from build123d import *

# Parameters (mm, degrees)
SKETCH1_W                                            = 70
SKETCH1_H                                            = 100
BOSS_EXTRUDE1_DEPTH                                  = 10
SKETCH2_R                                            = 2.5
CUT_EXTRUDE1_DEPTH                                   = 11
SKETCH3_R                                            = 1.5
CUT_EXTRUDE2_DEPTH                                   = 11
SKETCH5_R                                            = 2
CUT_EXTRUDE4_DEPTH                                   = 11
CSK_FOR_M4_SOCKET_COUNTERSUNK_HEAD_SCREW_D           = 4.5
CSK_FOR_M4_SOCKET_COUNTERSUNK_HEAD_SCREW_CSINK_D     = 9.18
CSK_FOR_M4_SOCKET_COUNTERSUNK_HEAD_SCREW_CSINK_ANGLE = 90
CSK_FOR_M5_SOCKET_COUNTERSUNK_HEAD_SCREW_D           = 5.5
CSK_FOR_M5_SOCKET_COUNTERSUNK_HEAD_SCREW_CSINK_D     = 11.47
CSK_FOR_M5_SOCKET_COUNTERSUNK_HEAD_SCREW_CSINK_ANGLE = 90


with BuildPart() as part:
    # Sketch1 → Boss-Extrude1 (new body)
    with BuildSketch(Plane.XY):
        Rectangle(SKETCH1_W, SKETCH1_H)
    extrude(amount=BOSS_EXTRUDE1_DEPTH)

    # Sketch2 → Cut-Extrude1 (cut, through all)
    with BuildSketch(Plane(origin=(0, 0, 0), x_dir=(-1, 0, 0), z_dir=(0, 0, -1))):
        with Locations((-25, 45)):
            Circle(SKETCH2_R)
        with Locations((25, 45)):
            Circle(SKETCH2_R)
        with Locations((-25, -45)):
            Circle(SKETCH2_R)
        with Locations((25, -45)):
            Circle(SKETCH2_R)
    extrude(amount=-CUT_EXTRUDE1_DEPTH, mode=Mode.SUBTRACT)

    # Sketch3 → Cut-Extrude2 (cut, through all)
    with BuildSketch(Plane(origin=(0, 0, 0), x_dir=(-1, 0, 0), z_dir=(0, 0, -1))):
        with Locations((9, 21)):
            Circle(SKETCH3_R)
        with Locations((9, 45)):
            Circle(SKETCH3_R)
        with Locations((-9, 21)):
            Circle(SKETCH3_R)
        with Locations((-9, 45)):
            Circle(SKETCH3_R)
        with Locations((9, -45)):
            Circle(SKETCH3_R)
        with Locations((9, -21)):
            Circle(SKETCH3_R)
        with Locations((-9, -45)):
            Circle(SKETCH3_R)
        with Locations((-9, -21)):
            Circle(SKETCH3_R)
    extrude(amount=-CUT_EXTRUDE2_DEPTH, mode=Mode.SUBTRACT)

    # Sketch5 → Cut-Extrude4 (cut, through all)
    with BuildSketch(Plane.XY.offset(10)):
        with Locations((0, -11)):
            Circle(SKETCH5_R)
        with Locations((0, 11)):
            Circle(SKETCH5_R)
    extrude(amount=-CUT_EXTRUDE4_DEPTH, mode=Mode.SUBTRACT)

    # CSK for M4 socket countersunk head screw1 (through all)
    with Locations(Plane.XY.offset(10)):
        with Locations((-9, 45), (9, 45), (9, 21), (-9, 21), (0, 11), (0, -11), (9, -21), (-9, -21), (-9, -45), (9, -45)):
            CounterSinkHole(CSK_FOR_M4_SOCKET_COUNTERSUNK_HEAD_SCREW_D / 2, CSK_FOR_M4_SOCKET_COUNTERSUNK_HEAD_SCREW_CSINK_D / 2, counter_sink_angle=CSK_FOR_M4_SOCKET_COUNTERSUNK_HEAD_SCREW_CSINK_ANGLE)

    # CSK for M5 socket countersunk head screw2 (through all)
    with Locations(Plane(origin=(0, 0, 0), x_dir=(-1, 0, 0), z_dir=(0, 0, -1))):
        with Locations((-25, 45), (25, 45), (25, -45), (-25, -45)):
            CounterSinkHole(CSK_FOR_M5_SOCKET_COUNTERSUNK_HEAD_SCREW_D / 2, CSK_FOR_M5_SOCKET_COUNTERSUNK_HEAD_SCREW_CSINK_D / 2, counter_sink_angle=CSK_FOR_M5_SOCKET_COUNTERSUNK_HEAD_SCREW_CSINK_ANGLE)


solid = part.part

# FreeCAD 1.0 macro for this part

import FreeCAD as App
import Part
import Sketcher

V = App.Vector


def add_polygon(sketch, points):
    """Adds a closed chain of lines whose ends are joined by coincident constraints."""
    first, n = sketch.GeometryCount, len(points)
    for a, b in zip(points, points[1:] + points[:1]):
        sketch.addGeometry(Part.LineSegment(App.Vector(*a, 0), App.Vector(*b, 0)), False)
    for i in range(n):
        sketch.addConstraint(Sketcher.Constraint("Coincident", first + i, 2, first + (i + 1) % n, 1))

doc = App.newDocument("Part")
body = doc.addObject("PartDesign::Body", "Body")

sketch1 = body.newObject("Sketcher::SketchObject", "Sketch")
sketch1.AttachmentSupport = (doc.getObject("XY_Plane"), [""])
sketch1.MapMode = "FlatFace"
add_polygon(sketch1, [(-35, 50), (-35, -50), (35, -50), (35, 50)])
sketch1.addConstraint(Sketcher.Constraint("Vertical", 0))
sketch1.addConstraint(Sketcher.Constraint("Horizontal", 1))
sketch1.addConstraint(Sketcher.Constraint("Vertical", 2))
sketch1.addConstraint(Sketcher.Constraint("Horizontal", 3))
sketch1.addConstraint(Sketcher.Constraint("Symmetric", 0, 2, 2, 2, -1, 1))
sketch1.addConstraint(Sketcher.Constraint("DistanceX", 1, 1, 1, 2, 70.0))
sketch1.addConstraint(Sketcher.Constraint("DistanceY", 0, 2, 0, 1, 100.0))
pad1 = body.newObject("PartDesign::Pad", "Pad")
pad1.Profile = sketch1
pad1.Length = 10

sketch2 = body.newObject("Sketcher::SketchObject", "Sketch001")
sketch2.AttachmentSupport = (doc.getObject("XY_Plane"), [""])
sketch2.MapMode = "FlatFace"
sketch2.addGeometry(Part.Circle(V(25, 45, 0), V(0, 0, 1), 2.5), False)
sketch2.addGeometry(Part.Circle(V(-25, 45, 0), V(0, 0, 1), 2.5), False)
sketch2.addGeometry(Part.Circle(V(25, -45, 0), V(0, 0, 1), 2.5), False)
sketch2.addGeometry(Part.Circle(V(-25, -45, 0), V(0, 0, 1), 2.5), False)
sketch2.addConstraint(Sketcher.Constraint("Equal", 0, 1))
sketch2.addConstraint(Sketcher.Constraint("Equal", 1, 2))
sketch2.addConstraint(Sketcher.Constraint("Equal", 2, 3))
sketch2.addConstraint(Sketcher.Constraint("Symmetric", 1, 3, 2, 3, -1, 1))
sketch2.addConstraint(Sketcher.Constraint("Symmetric", 0, 3, 3, 3, -1, 1))
sketch2.addConstraint(Sketcher.Constraint("Symmetric", 0, 3, 1, 3, -2))
sketch2.addConstraint(Sketcher.Constraint("Diameter", 0, 5.0))
sketch2.addConstraint(Sketcher.Constraint("DistanceX", -1, 1, 0, 3, 25.0))
sketch2.addConstraint(Sketcher.Constraint("DistanceY", -1, 1, 0, 3, 45.0))
pocket1 = body.newObject("PartDesign::Pocket", "Pocket")
pocket1.Profile = sketch2
pocket1.Type = "ThroughAll"
pocket1.Reversed = True

sketch3 = body.newObject("Sketcher::SketchObject", "Sketch002")
sketch3.AttachmentSupport = (doc.getObject("XY_Plane"), [""])
sketch3.MapMode = "FlatFace"
sketch3.addGeometry(Part.Circle(V(-9, 21, 0), V(0, 0, 1), 1.5), False)
sketch3.addGeometry(Part.Circle(V(-9, 45, 0), V(0, 0, 1), 1.5), False)
sketch3.addGeometry(Part.Circle(V(9, 21, 0), V(0, 0, 1), 1.5), False)
sketch3.addGeometry(Part.Circle(V(9, 45, 0), V(0, 0, 1), 1.5), False)
sketch3.addGeometry(Part.Circle(V(-9, -45, 0), V(0, 0, 1), 1.5), False)
sketch3.addGeometry(Part.Circle(V(-9, -21, 0), V(0, 0, 1), 1.5), False)
sketch3.addGeometry(Part.Circle(V(9, -45, 0), V(0, 0, 1), 1.5), False)
sketch3.addGeometry(Part.Circle(V(9, -21, 0), V(0, 0, 1), 1.5), False)
sketch3.addConstraint(Sketcher.Constraint("Equal", 0, 1))
sketch3.addConstraint(Sketcher.Constraint("Equal", 1, 2))
sketch3.addConstraint(Sketcher.Constraint("Equal", 2, 3))
sketch3.addConstraint(Sketcher.Constraint("Equal", 3, 4))
sketch3.addConstraint(Sketcher.Constraint("Equal", 4, 5))
sketch3.addConstraint(Sketcher.Constraint("Equal", 5, 6))
sketch3.addConstraint(Sketcher.Constraint("Equal", 6, 7))
sketch3.addConstraint(Sketcher.Constraint("Symmetric", 3, 3, 4, 3, -1, 1))
sketch3.addConstraint(Sketcher.Constraint("Symmetric", 2, 3, 5, 3, -1, 1))
sketch3.addConstraint(Sketcher.Constraint("Symmetric", 1, 3, 6, 3, -1, 1))
sketch3.addConstraint(Sketcher.Constraint("Symmetric", 0, 3, 7, 3, -1, 1))
sketch3.addConstraint(Sketcher.Constraint("Symmetric", 0, 3, 2, 3, -2))
sketch3.addConstraint(Sketcher.Constraint("Symmetric", 1, 3, 3, 3, -2))
sketch3.addConstraint(Sketcher.Constraint("Vertical", 0, 3, 1, 3))
sketch3.addConstraint(Sketcher.Constraint("Diameter", 0, 3.0))
sketch3.addConstraint(Sketcher.Constraint("DistanceX", 0, 3, -1, 1, 9.0))
sketch3.addConstraint(Sketcher.Constraint("DistanceY", -1, 1, 0, 3, 21.0))
sketch3.addConstraint(Sketcher.Constraint("DistanceY", -1, 1, 1, 3, 45.0))
pocket2 = body.newObject("PartDesign::Pocket", "Pocket001")
pocket2.Profile = sketch3
pocket2.Type = "ThroughAll"
pocket2.Reversed = True

sketch4 = body.newObject("Sketcher::SketchObject", "Sketch003")
sketch4.AttachmentSupport = (doc.getObject("XY_Plane"), [""])
sketch4.MapMode = "FlatFace"
sketch4.AttachmentOffset = App.Placement(V(0, 0, 10), App.Rotation())
sketch4.addGeometry(Part.Circle(V(0, -11, 0), V(0, 0, 1), 2), False)
sketch4.addGeometry(Part.Circle(V(0, 11, 0), V(0, 0, 1), 2), False)
sketch4.addConstraint(Sketcher.Constraint("Equal", 0, 1))
sketch4.addConstraint(Sketcher.Constraint("Symmetric", 0, 3, 1, 3, -1, 1))
sketch4.addConstraint(Sketcher.Constraint("PointOnObject", 0, 3, -2))
sketch4.addConstraint(Sketcher.Constraint("Diameter", 0, 4.0))
sketch4.addConstraint(Sketcher.Constraint("DistanceY", 0, 3, -1, 1, 11.0))
pocket3 = body.newObject("PartDesign::Pocket", "Pocket002")
pocket3.Profile = sketch4
pocket3.Type = "ThroughAll"

sketch5 = body.newObject("Sketcher::SketchObject", "Sketch004")
sketch5.AttachmentSupport = (doc.getObject("XY_Plane"), [""])
sketch5.MapMode = "FlatFace"
sketch5.AttachmentOffset = App.Placement(V(0, 0, 10), App.Rotation())
sketch5.addGeometry(Part.Circle(V(-9, 45, 0), V(0, 0, 1), 2.2), False)
sketch5.addGeometry(Part.Circle(V(9, 45, 0), V(0, 0, 1), 2.2), False)
sketch5.addGeometry(Part.Circle(V(9, 21, 0), V(0, 0, 1), 2.2), False)
sketch5.addGeometry(Part.Circle(V(-9, 21, 0), V(0, 0, 1), 2.2), False)
sketch5.addGeometry(Part.Circle(V(0, 11, 0), V(0, 0, 1), 2.2), False)
sketch5.addGeometry(Part.Circle(V(0, -11, 0), V(0, 0, 1), 2.2), False)
sketch5.addGeometry(Part.Circle(V(9, -21, 0), V(0, 0, 1), 2.2), False)
sketch5.addGeometry(Part.Circle(V(-9, -21, 0), V(0, 0, 1), 2.2), False)
sketch5.addGeometry(Part.Circle(V(-9, -45, 0), V(0, 0, 1), 2.2), False)
sketch5.addGeometry(Part.Circle(V(9, -45, 0), V(0, 0, 1), 2.2), False)
sketch5.addConstraint(Sketcher.Constraint("Equal", 0, 1))
sketch5.addConstraint(Sketcher.Constraint("Equal", 1, 2))
sketch5.addConstraint(Sketcher.Constraint("Equal", 2, 3))
sketch5.addConstraint(Sketcher.Constraint("Equal", 3, 4))
sketch5.addConstraint(Sketcher.Constraint("Equal", 4, 5))
sketch5.addConstraint(Sketcher.Constraint("Equal", 5, 6))
sketch5.addConstraint(Sketcher.Constraint("Equal", 6, 7))
sketch5.addConstraint(Sketcher.Constraint("Equal", 7, 8))
sketch5.addConstraint(Sketcher.Constraint("Equal", 8, 9))
sketch5.addConstraint(Sketcher.Constraint("Symmetric", 4, 3, 5, 3, -1, 1))
sketch5.addConstraint(Sketcher.Constraint("Symmetric", 3, 3, 6, 3, -1, 1))
sketch5.addConstraint(Sketcher.Constraint("Symmetric", 2, 3, 7, 3, -1, 1))
sketch5.addConstraint(Sketcher.Constraint("Symmetric", 1, 3, 8, 3, -1, 1))
sketch5.addConstraint(Sketcher.Constraint("Symmetric", 0, 3, 9, 3, -1, 1))
sketch5.addConstraint(Sketcher.Constraint("Symmetric", 0, 3, 1, 3, -2))
sketch5.addConstraint(Sketcher.Constraint("Symmetric", 2, 3, 3, 3, -2))
sketch5.addConstraint(Sketcher.Constraint("PointOnObject", 4, 3, -2))
sketch5.addConstraint(Sketcher.Constraint("Vertical", 1, 3, 2, 3))
sketch5.addConstraint(Sketcher.Constraint("Diameter", 0, 4.5))
sketch5.addConstraint(Sketcher.Constraint("DistanceX", 0, 3, -1, 1, 9.0))
sketch5.addConstraint(Sketcher.Constraint("DistanceY", -1, 1, 0, 3, 45.0))
sketch5.addConstraint(Sketcher.Constraint("DistanceY", -1, 1, 2, 3, 21.0))
sketch5.addConstraint(Sketcher.Constraint("DistanceY", -1, 1, 4, 3, 11.0))
doc.recompute()
hole = body.newObject("PartDesign::Hole", "Hole")
hole.Profile = sketch5
hole.ThreadType = "None"
hole.Diameter = 4.5
hole.DepthType = "ThroughAll"
hole.HoleCutType = "Countersink"
hole.HoleCutDiameter = 9.18
hole.HoleCutCountersinkAngle = 90

sketch6 = body.newObject("Sketcher::SketchObject", "Sketch005")
sketch6.AttachmentSupport = (doc.getObject("XY_Plane"), [""])
sketch6.MapMode = "FlatFace"
sketch6.addGeometry(Part.Circle(V(25, 45, 0), V(0, 0, 1), 2.8), False)
sketch6.addGeometry(Part.Circle(V(-25, 45, 0), V(0, 0, 1), 2.8), False)
sketch6.addGeometry(Part.Circle(V(-25, -45, 0), V(0, 0, 1), 2.8), False)
sketch6.addGeometry(Part.Circle(V(25, -45, 0), V(0, 0, 1), 2.8), False)
sketch6.addConstraint(Sketcher.Constraint("Equal", 0, 1))
sketch6.addConstraint(Sketcher.Constraint("Equal", 1, 2))
sketch6.addConstraint(Sketcher.Constraint("Equal", 2, 3))
sketch6.addConstraint(Sketcher.Constraint("Symmetric", 0, 3, 2, 3, -1, 1))
sketch6.addConstraint(Sketcher.Constraint("Symmetric", 1, 3, 3, 3, -1, 1))
sketch6.addConstraint(Sketcher.Constraint("Symmetric", 0, 3, 1, 3, -2))
sketch6.addConstraint(Sketcher.Constraint("Diameter", 0, 5.5))
sketch6.addConstraint(Sketcher.Constraint("DistanceX", -1, 1, 0, 3, 25.0))
sketch6.addConstraint(Sketcher.Constraint("DistanceY", -1, 1, 0, 3, 45.0))
doc.recompute()
hole2 = body.newObject("PartDesign::Hole", "Hole001")
hole2.Profile = sketch6
hole2.ThreadType = "None"
hole2.Diameter = 5.5
hole2.DepthType = "ThroughAll"
hole2.HoleCutType = "Countersink"
hole2.HoleCutDiameter = 11.47
hole2.HoleCutCountersinkAngle = 90
hole2.Reversed = True

doc.recompute()
